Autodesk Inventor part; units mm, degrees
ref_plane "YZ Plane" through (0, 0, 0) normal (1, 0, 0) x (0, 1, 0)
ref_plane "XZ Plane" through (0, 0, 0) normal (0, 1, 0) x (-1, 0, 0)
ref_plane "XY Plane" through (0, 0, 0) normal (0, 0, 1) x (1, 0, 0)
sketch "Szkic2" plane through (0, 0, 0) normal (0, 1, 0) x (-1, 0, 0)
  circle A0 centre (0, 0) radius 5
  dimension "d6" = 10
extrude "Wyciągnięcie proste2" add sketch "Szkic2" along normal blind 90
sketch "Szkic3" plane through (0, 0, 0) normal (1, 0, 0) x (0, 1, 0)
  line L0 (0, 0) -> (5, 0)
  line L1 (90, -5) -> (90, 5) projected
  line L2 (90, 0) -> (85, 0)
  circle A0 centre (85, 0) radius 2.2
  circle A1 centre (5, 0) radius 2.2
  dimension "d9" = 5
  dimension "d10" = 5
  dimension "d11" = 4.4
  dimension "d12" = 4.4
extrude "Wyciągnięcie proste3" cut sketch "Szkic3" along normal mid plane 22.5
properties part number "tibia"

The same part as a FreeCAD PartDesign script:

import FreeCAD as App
import Part
import Sketcher
from FreeCAD import Vector
Q = App.Units.Quantity

doc = App.newDocument("Part")
body = doc.addObject("PartDesign::Body", "Body")

sketch1 = doc.addObject("Sketcher::SketchObject", "Sketch")
body.addObject(sketch1)
sketch1.AttachmentSupport = (doc.XZ_Plane, [""])
sketch1.MapMode = "FlatFace"
sketch1.addGeometry(Part.Circle(Vector(0, 0, 0), Vector(0, 0, 1), 5), False)
sketch1.addConstraint([
    Sketcher.Constraint("Coincident", 0, 3, -1, 1),
    Sketcher.Constraint("Diameter", 0, Q("10 mm")),
])
pad1 = doc.addObject("PartDesign::Pad", "Pad")
body.addObject(pad1)
pad1.Profile = sketch1
pad1.Length = 90
pad1.Reversed = True

sketch2 = doc.addObject("Sketcher::SketchObject", "Sketch001")
body.addObject(sketch2)
sketch2.AttachmentSupport = (doc.YZ_Plane, [""])
sketch2.MapMode = "FlatFace"
sketch2.addGeometry([
    Part.Circle(Vector(85, 0, 0), Vector(0, 0, 1), 2.2),
    Part.Circle(Vector(5, 0, 0), Vector(0, 0, 1), 2.2),
], False)
sketch2.addConstraint([
    Sketcher.Constraint("Equal", 0, 1),
    Sketcher.Constraint("PointOnObject", 0, 3, -1),
    Sketcher.Constraint("PointOnObject", 1, 3, -1),
    Sketcher.Constraint("Diameter", 0, Q("4.4 mm")),
    Sketcher.Constraint("DistanceX", -1, 1, 1, 3, Q("5 mm")),
    Sketcher.Constraint("DistanceX", -1, 1, 0, 3, Q("85 mm")),
])
pocket1 = doc.addObject("PartDesign::Pocket", "Pocket")
body.addObject(pocket1)
pocket1.Profile = sketch2
pocket1.Length = 22.5
pocket1.Midplane = True

doc.recompute()
